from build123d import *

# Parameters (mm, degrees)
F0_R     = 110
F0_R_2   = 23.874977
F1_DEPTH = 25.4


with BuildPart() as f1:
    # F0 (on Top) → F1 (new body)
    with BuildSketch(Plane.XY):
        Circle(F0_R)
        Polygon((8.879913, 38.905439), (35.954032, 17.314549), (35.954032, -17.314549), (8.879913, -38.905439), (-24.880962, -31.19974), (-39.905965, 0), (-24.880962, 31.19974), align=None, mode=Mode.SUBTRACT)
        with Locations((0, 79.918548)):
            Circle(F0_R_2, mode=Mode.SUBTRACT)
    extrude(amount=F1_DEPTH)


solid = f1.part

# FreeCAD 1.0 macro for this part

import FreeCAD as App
import Part
import Sketcher

doc = App.newDocument("Part")
body = doc.addObject("PartDesign::Body", "Body")

sketch1 = body.newObject("Sketcher::SketchObject", "Sketch")
sketch1.AttachmentSupport = (doc.getObject("XY_Plane"), [""])
sketch1.MapMode = "FlatFace"
sketch1.addGeometry(Part.Circle(App.Vector(0, 0, 0), App.Vector(0, 0, 1), 110), False)
sketch1.addGeometry(Part.LineSegment(App.Vector(-25, 31, 0), App.Vector(9, 39, 0)), False)
sketch1.addGeometry(Part.LineSegment(App.Vector(9, 39, 0), App.Vector(36, 17, 0)), False)
sketch1.addGeometry(Part.LineSegment(App.Vector(36, 17, 0), App.Vector(36, -17, 0)), False)
sketch1.addGeometry(Part.LineSegment(App.Vector(36, -17, 0), App.Vector(9, -39, 0)), False)
sketch1.addGeometry(Part.LineSegment(App.Vector(9, -39, 0), App.Vector(-25, -31, 0)), False)
sketch1.addGeometry(Part.LineSegment(App.Vector(-25, -31, 0), App.Vector(-40, 0, 0)), False)
sketch1.addGeometry(Part.LineSegment(App.Vector(-40, 0, 0), App.Vector(-25, 31, 0)), False)
sketch1.addGeometry(Part.Circle(App.Vector(0, 80, 0), App.Vector(0, 0, 1), 24), False)
sketch1.addConstraint(Sketcher.Constraint("Coincident", 1, 2, 2, 1))
sketch1.addConstraint(Sketcher.Constraint("Coincident", 2, 2, 3, 1))
sketch1.addConstraint(Sketcher.Constraint("Coincident", 3, 2, 4, 1))
sketch1.addConstraint(Sketcher.Constraint("Coincident", 4, 2, 5, 1))
sketch1.addConstraint(Sketcher.Constraint("Coincident", 5, 2, 6, 1))
sketch1.addConstraint(Sketcher.Constraint("Coincident", 6, 2, 7, 1))
sketch1.addConstraint(Sketcher.Constraint("Coincident", 7, 2, 1, 1))
sketch1.addConstraint(Sketcher.Constraint("Vertical", 3))
sketch1.addConstraint(Sketcher.Constraint("Coincident", 0, 3, -1, 1))
sketch1.addConstraint(Sketcher.Constraint("Symmetric", 1, 2, 4, 2, -1))
sketch1.addConstraint(Sketcher.Constraint("Symmetric", 5, 2, 7, 2, -1))
sketch1.addConstraint(Sketcher.Constraint("PointOnObject", 8, 3, -2))
sketch1.addConstraint(Sketcher.Constraint("PointOnObject", 6, 2, -1))
sketch1.addConstraint(Sketcher.Constraint("Equal", 1, 2))
sketch1.addConstraint(Sketcher.Constraint("Equal", 2, 4))
sketch1.addConstraint(Sketcher.Constraint("Equal", 5, 6))
sketch1.addConstraint(Sketcher.Constraint("Diameter", 0, 220.0))
sketch1.addConstraint(Sketcher.Constraint("Diameter", 8, 47.749954))
sketch1.addConstraint(Sketcher.Constraint("DistanceY", 2, 2, 8, 3, 62.603999))
sketch1.addConstraint(Sketcher.Constraint("Distance", 1, 34.629099))
sketch1.addConstraint(Sketcher.Constraint("DistanceY", 4, 2, 5, 2, 7.705699))
sketch1.addConstraint(Sketcher.Constraint("DistanceY", 3, 2, 3, 1, 34.629098))
sketch1.addConstraint(Sketcher.Constraint("DistanceY", -1, 1, 1, 2, 38.905439))
sketch1.addConstraint(Sketcher.Constraint("DistanceX", -1, 1, 2, 2, 35.954032))
pad1 = body.newObject("PartDesign::Pad", "Pad")
pad1.Profile = sketch1
pad1.Length = 25.4

doc.recompute()
